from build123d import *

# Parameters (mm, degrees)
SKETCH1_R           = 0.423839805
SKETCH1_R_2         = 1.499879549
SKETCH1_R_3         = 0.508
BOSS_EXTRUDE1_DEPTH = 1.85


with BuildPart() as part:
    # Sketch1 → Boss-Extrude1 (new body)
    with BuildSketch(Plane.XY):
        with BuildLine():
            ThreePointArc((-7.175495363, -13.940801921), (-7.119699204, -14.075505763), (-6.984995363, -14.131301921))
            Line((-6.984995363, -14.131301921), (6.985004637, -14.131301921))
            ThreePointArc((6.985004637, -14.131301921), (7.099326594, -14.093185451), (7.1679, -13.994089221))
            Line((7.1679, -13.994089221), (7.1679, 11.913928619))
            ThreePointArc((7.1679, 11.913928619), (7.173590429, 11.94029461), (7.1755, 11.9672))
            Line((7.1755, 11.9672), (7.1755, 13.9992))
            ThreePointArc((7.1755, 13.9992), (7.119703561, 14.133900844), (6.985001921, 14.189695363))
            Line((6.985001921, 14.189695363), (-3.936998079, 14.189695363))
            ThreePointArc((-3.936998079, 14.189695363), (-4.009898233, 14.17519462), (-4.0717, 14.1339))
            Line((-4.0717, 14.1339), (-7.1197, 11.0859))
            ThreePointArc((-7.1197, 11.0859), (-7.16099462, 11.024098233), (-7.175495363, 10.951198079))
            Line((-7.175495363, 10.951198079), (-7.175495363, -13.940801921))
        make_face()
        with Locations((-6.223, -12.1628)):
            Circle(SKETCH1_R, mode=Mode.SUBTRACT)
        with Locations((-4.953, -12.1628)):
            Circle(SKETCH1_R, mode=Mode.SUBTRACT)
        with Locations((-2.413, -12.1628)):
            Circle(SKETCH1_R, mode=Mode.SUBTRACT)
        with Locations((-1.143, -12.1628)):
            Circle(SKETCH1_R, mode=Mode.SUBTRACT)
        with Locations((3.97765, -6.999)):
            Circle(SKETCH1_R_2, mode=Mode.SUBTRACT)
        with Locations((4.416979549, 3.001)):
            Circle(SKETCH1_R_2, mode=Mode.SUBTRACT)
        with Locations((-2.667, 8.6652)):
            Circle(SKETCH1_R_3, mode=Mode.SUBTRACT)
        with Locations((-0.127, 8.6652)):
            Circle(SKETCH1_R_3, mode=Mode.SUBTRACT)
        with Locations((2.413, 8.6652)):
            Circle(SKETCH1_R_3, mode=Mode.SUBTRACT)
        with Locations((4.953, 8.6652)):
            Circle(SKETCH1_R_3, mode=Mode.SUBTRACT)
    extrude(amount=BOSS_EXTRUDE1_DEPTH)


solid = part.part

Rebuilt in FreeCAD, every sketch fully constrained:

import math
import FreeCAD as App
import Part
import Sketcher
from FreeCAD import Vector
Q = App.Units.Quantity

doc = App.newDocument("Part")
body = doc.addObject("PartDesign::Body", "Body")

sketch1 = body.newObject("Sketcher::SketchObject", "Sketch")
sketch1.AttachmentSupport = (doc.getObject("XY_Plane"), [""])
sketch1.MapMode = "FlatFace"
sketch1.addGeometry(Part.ArcOfCircle(Part.Circle(Vector(-6.984995, -13.940802, 0), Vector(0, 0, 1), 0.1905), math.radians(-180), math.radians(-90)), False)
sketch1.addGeometry(Part.LineSegment(Vector(-6.984995, -14.131302, 0), Vector(6.985005, -14.131302, 0)), False)
sketch1.addGeometry(Part.ArcOfCircle(Part.Circle(Vector(6.985005, -13.940802, 0), Vector(0, 0, 1), 0.1905), math.radians(-90), math.radians(-16.243695)), False)
sketch1.addGeometry(Part.LineSegment(Vector(7.1679, -13.994089, 0), Vector(7.1679, 11.913929, 0)), False)
sketch1.addGeometry(Part.ArcOfCircle(Part.Circle(Vector(6.985, 11.9672, 0), Vector(0, 0, 1), 0.1905), math.radians(-16.238707), math.radians(-0.000001)), False)
sketch1.addGeometry(Part.LineSegment(Vector(7.1755, 11.9672, 0), Vector(7.1755, 13.9992, 0)), False)
sketch1.addGeometry(Part.ArcOfCircle(Part.Circle(Vector(6.985002, 13.999198, 0), Vector(0, 0, 1), 0.190498), math.radians(0.000697), math.radians(90.00012)), False)
sketch1.addGeometry(Part.LineSegment(Vector(6.985002, 14.189695, 0), Vector(-3.936998, 14.189695, 0)), False)
sketch1.addGeometry(Part.ArcOfCircle(Part.Circle(Vector(-3.936998, 13.999198, 0), Vector(0, 0, 1), 0.190497), math.radians(90.000001), math.radians(134.999999)), False)
sketch1.addGeometry(Part.LineSegment(Vector(-4.0717, 14.1339, 0), Vector(-7.1197, 11.0859, 0)), False)
sketch1.addGeometry(Part.ArcOfCircle(Part.Circle(Vector(-6.984998, 10.951198, 0), Vector(0, 0, 1), 0.190497), math.radians(135.000001), math.radians(179.999999)), False)
sketch1.addGeometry(Part.LineSegment(Vector(-7.175495, 10.951198, 0), Vector(-7.175495, -13.940802, 0)), False)
sketch1.addGeometry(Part.Circle(Vector(-6.223, -12.1628, 0), Vector(0, 0, 1), 0.42384), False)
sketch1.addGeometry(Part.Circle(Vector(-4.953, -12.1628, 0), Vector(0, 0, 1), 0.42384), False)
sketch1.addGeometry(Part.Circle(Vector(-2.413, -12.1628, 0), Vector(0, 0, 1), 0.42384), False)
sketch1.addGeometry(Part.Circle(Vector(-1.143, -12.1628, 0), Vector(0, 0, 1), 0.42384), False)
sketch1.addGeometry(Part.Circle(Vector(3.97765, -6.999, 0), Vector(0, 0, 1), 1.49988), False)
sketch1.addGeometry(Part.Circle(Vector(-2.667, 8.6652, 0), Vector(0, 0, 1), 0.508), False)
sketch1.addGeometry(Part.Circle(Vector(4.41698, 3.001, 0), Vector(0, 0, 1), 1.49988), False)
sketch1.addGeometry(Part.Circle(Vector(-0.127, 8.6652, 0), Vector(0, 0, 1), 0.508), False)
sketch1.addGeometry(Part.Circle(Vector(2.413, 8.6652, 0), Vector(0, 0, 1), 0.508), False)
sketch1.addGeometry(Part.Circle(Vector(4.953, 8.6652, 0), Vector(0, 0, 1), 0.508), False)
sketch1.addConstraint(Sketcher.Constraint("Tangent", 0, 2, 1, 1))
sketch1.addConstraint(Sketcher.Constraint("Tangent", 1, 2, 2, 1))
sketch1.addConstraint(Sketcher.Constraint("Coincident", 2, 2, 3, 1))
sketch1.addConstraint(Sketcher.Constraint("Coincident", 3, 2, 4, 1))
sketch1.addConstraint(Sketcher.Constraint("Tangent", 4, 2, 5, 1))
sketch1.addConstraint(Sketcher.Constraint("Coincident", 5, 2, 6, 1))
sketch1.addConstraint(Sketcher.Constraint("Coincident", 6, 2, 7, 1))
sketch1.addConstraint(Sketcher.Constraint("Tangent", 7, 2, 8, 1))
sketch1.addConstraint(Sketcher.Constraint("Tangent", 8, 2, 9, 1))
sketch1.addConstraint(Sketcher.Constraint("Tangent", 9, 2, 10, 1))
sketch1.addConstraint(Sketcher.Constraint("Tangent", 10, 2, 11, 1))
sketch1.addConstraint(Sketcher.Constraint("Tangent", 11, 2, 0, 1))
sketch1.addConstraint(Sketcher.Constraint("Horizontal", 1))
sketch1.addConstraint(Sketcher.Constraint("Vertical", 3))
sketch1.addConstraint(Sketcher.Constraint("Vertical", 5))
sketch1.addConstraint(Sketcher.Constraint("Horizontal", 7))
sketch1.addConstraint(Sketcher.Constraint("Vertical", 11))
sketch1.addConstraint(Sketcher.Constraint("Equal", 0, 2))
sketch1.addConstraint(Sketcher.Constraint("Equal", 2, 4))
sketch1.addConstraint(Sketcher.Constraint("Equal", 6, 8))
sketch1.addConstraint(Sketcher.Constraint("Equal", 8, 10))
sketch1.addConstraint(Sketcher.Constraint("Equal", 12, 13))
sketch1.addConstraint(Sketcher.Constraint("Equal", 13, 14))
sketch1.addConstraint(Sketcher.Constraint("Equal", 14, 15))
sketch1.addConstraint(Sketcher.Constraint("Equal", 16, 18))
sketch1.addConstraint(Sketcher.Constraint("Equal", 17, 19))
sketch1.addConstraint(Sketcher.Constraint("Equal", 19, 20))
sketch1.addConstraint(Sketcher.Constraint("Equal", 20, 21))
sketch1.addConstraint(Sketcher.Constraint("Horizontal", 12, 3, 13, 3))
sketch1.addConstraint(Sketcher.Constraint("Horizontal", 13, 3, 14, 3))
sketch1.addConstraint(Sketcher.Constraint("Horizontal", 14, 3, 15, 3))
sketch1.addConstraint(Sketcher.Constraint("Horizontal", 17, 3, 19, 3))
sketch1.addConstraint(Sketcher.Constraint("Horizontal", 19, 3, 20, 3))
sketch1.addConstraint(Sketcher.Constraint("Horizontal", 20, 3, 21, 3))
sketch1.addConstraint(Sketcher.Constraint("Horizontal", 8, 3, 5, 2))
sketch1.addConstraint(Sketcher.Constraint("Vertical", 4, 3, 6, 2))
sketch1.addConstraint(Sketcher.Constraint("Diameter", 17, Q("0.04 in")))
sketch1.addConstraint(Sketcher.Constraint("Angle", 9, Q("-135 deg")))
sketch1.addConstraint(Sketcher.Constraint("DistanceX", 1, 1, 1, 2, Q("0.55 in")))
sketch1.addConstraint(Sketcher.Constraint("DistanceX", 7, 2, 7, 1, Q("0.43 in")))
sketch1.addConstraint(Sketcher.Constraint("DistanceY", 5, 1, 5, 2, Q("0.08 in")))
sketch1.addConstraint(Sketcher.Constraint("DistanceY", 11, 2, 11, 1, Q("0.98 in")))
sketch1.addConstraint(Sketcher.Constraint("Radius", 0, Q("0.0075 in")))
sketch1.addConstraint(Sketcher.Constraint("Radius", 6, Q("0.0074999 in")))
sketch1.addConstraint(Sketcher.Constraint("DistanceY", 2, 3, 6, 3, Q("1.1 in")))
sketch1.addConstraint(Sketcher.Constraint("DistanceX", 13, 3, 14, 3, Q("0.1 in")))
sketch1.addConstraint(Sketcher.Constraint("DistanceX", 12, 3, 15, 3, Q("0.2 in")))
sketch1.addConstraint(Sketcher.Constraint("DistanceX", 17, 3, 19, 3, Q("0.1 in")))
sketch1.addConstraint(Sketcher.Constraint("DistanceX", 19, 3, 20, 3, Q("0.1 in")))
sketch1.addConstraint(Sketcher.Constraint("DistanceX", 20, 3, 21, 3, Q("0.1 in")))
sketch1.addConstraint(Sketcher.Constraint("DistanceX", 0, 3, 12, 3, Q("0.0299998 in")))
sketch1.addConstraint(Sketcher.Constraint("DistanceY", 0, 3, 12, 3, Q("0.0700001 in")))
sketch1.addConstraint(Sketcher.Constraint("DistanceX", 12, 3, 13, 3, Q("0.05 in")))
sketch1.addConstraint(Sketcher.Constraint("DistanceX", 10, 3, 17, 3, Q("0.1699999 in")))
sketch1.addConstraint(Sketcher.Constraint("DistanceY", 17, 3, 10, 3, Q("0.0899999 in")))
sketch1.addConstraint(Sketcher.Constraint("Diameter", 12, 0.84768))
sketch1.addConstraint(Sketcher.Constraint("Diameter", 16, 2.999759))
sketch1.addConstraint(Sketcher.Constraint("DistanceX", 0, 3, -1, 1, Q("0.2749998 in")))
sketch1.addConstraint(Sketcher.Constraint("DistanceY", 18, 3, 17, 3, Q("0.223 in")))
sketch1.addConstraint(Sketcher.Constraint("DistanceY", 0, 3, -1, 1, 13.940802))
sketch1.addConstraint(Sketcher.Constraint("DistanceY", 16, 3, -1, 1, 6.999))
sketch1.addConstraint(Sketcher.Constraint("DistanceX", -1, 1, 2, 2, 7.1679))
sketch1.addConstraint(Sketcher.Constraint("DistanceX", -1, 1, 16, 3, 3.97765))
sketch1.addConstraint(Sketcher.Constraint("DistanceX", -1, 1, 18, 3, 4.41698))
pad1 = body.newObject("PartDesign::Pad", "Pad")
pad1.Profile = sketch1
pad1.Length = 1.85

doc.recompute()
